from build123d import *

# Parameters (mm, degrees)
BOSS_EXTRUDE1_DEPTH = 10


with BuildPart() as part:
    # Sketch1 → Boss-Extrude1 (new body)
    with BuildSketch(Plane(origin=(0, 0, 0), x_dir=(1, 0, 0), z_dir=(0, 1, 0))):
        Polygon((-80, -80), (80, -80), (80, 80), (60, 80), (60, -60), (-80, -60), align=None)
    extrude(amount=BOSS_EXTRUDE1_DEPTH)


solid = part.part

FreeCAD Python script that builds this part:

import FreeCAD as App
import Part
import Sketcher
from FreeCAD import Vector
Q = App.Units.Quantity

doc = App.newDocument("Part")
body = doc.addObject("PartDesign::Body", "Body")

# Sketch on XZ plane
sketch1 = body.newObject("Sketcher::SketchObject", "Sketch")
sketch1.AttachmentSupport = (doc.getObject("XZ_Plane"), [""])
sketch1.MapMode = "FlatFace"
sketch1.addGeometry([
    Part.LineSegment(Vector(-80, 80, 0), Vector(80, 80, 0)),  # 0
    Part.LineSegment(Vector(80, 80, 0), Vector(80, -80, 0)),  # 1
    Part.LineSegment(Vector(80, -80, 0), Vector(60, -80, 0)),  # 2
    Part.LineSegment(Vector(60, -80, 0), Vector(60, 60, 0)),  # 3
    Part.LineSegment(Vector(60, 60, 0), Vector(-80, 60, 0)),  # 4
    Part.LineSegment(Vector(-80, 60, 0), Vector(-80, 80, 0)),  # 5
], False)
sketch1.addConstraint([
    Sketcher.Constraint("Coincident", 0, 2, 1, 1),
    Sketcher.Constraint("Coincident", 1, 2, 2, 1),
    Sketcher.Constraint("Coincident", 2, 2, 3, 1),
    Sketcher.Constraint("Coincident", 3, 2, 4, 1),
    Sketcher.Constraint("Coincident", 4, 2, 5, 1),
    Sketcher.Constraint("Coincident", 5, 2, 0, 1),
    Sketcher.Constraint("Horizontal", 0),
    Sketcher.Constraint("Vertical", 1),
    Sketcher.Constraint("Horizontal", 2),
    Sketcher.Constraint("Vertical", 3),
    Sketcher.Constraint("Horizontal", 4),
    Sketcher.Constraint("Vertical", 5),
    Sketcher.Constraint("Symmetric", 1, 2, 5, 2, -1, 1),
    Sketcher.Constraint("Equal", 0, 1),
    Sketcher.Constraint("Equal", 4, 3),
    Sketcher.Constraint("DistanceX", 0, 1, 0, 2, Q("160 mm")),
    Sketcher.Constraint("DistanceX", 2, 2, 2, 1, Q("20 mm")),
])
pad1 = body.newObject("PartDesign::Pad", "Pad")
pad1.Profile = sketch1
pad1.Length = 10
pad1.Reversed = True

doc.recompute()
